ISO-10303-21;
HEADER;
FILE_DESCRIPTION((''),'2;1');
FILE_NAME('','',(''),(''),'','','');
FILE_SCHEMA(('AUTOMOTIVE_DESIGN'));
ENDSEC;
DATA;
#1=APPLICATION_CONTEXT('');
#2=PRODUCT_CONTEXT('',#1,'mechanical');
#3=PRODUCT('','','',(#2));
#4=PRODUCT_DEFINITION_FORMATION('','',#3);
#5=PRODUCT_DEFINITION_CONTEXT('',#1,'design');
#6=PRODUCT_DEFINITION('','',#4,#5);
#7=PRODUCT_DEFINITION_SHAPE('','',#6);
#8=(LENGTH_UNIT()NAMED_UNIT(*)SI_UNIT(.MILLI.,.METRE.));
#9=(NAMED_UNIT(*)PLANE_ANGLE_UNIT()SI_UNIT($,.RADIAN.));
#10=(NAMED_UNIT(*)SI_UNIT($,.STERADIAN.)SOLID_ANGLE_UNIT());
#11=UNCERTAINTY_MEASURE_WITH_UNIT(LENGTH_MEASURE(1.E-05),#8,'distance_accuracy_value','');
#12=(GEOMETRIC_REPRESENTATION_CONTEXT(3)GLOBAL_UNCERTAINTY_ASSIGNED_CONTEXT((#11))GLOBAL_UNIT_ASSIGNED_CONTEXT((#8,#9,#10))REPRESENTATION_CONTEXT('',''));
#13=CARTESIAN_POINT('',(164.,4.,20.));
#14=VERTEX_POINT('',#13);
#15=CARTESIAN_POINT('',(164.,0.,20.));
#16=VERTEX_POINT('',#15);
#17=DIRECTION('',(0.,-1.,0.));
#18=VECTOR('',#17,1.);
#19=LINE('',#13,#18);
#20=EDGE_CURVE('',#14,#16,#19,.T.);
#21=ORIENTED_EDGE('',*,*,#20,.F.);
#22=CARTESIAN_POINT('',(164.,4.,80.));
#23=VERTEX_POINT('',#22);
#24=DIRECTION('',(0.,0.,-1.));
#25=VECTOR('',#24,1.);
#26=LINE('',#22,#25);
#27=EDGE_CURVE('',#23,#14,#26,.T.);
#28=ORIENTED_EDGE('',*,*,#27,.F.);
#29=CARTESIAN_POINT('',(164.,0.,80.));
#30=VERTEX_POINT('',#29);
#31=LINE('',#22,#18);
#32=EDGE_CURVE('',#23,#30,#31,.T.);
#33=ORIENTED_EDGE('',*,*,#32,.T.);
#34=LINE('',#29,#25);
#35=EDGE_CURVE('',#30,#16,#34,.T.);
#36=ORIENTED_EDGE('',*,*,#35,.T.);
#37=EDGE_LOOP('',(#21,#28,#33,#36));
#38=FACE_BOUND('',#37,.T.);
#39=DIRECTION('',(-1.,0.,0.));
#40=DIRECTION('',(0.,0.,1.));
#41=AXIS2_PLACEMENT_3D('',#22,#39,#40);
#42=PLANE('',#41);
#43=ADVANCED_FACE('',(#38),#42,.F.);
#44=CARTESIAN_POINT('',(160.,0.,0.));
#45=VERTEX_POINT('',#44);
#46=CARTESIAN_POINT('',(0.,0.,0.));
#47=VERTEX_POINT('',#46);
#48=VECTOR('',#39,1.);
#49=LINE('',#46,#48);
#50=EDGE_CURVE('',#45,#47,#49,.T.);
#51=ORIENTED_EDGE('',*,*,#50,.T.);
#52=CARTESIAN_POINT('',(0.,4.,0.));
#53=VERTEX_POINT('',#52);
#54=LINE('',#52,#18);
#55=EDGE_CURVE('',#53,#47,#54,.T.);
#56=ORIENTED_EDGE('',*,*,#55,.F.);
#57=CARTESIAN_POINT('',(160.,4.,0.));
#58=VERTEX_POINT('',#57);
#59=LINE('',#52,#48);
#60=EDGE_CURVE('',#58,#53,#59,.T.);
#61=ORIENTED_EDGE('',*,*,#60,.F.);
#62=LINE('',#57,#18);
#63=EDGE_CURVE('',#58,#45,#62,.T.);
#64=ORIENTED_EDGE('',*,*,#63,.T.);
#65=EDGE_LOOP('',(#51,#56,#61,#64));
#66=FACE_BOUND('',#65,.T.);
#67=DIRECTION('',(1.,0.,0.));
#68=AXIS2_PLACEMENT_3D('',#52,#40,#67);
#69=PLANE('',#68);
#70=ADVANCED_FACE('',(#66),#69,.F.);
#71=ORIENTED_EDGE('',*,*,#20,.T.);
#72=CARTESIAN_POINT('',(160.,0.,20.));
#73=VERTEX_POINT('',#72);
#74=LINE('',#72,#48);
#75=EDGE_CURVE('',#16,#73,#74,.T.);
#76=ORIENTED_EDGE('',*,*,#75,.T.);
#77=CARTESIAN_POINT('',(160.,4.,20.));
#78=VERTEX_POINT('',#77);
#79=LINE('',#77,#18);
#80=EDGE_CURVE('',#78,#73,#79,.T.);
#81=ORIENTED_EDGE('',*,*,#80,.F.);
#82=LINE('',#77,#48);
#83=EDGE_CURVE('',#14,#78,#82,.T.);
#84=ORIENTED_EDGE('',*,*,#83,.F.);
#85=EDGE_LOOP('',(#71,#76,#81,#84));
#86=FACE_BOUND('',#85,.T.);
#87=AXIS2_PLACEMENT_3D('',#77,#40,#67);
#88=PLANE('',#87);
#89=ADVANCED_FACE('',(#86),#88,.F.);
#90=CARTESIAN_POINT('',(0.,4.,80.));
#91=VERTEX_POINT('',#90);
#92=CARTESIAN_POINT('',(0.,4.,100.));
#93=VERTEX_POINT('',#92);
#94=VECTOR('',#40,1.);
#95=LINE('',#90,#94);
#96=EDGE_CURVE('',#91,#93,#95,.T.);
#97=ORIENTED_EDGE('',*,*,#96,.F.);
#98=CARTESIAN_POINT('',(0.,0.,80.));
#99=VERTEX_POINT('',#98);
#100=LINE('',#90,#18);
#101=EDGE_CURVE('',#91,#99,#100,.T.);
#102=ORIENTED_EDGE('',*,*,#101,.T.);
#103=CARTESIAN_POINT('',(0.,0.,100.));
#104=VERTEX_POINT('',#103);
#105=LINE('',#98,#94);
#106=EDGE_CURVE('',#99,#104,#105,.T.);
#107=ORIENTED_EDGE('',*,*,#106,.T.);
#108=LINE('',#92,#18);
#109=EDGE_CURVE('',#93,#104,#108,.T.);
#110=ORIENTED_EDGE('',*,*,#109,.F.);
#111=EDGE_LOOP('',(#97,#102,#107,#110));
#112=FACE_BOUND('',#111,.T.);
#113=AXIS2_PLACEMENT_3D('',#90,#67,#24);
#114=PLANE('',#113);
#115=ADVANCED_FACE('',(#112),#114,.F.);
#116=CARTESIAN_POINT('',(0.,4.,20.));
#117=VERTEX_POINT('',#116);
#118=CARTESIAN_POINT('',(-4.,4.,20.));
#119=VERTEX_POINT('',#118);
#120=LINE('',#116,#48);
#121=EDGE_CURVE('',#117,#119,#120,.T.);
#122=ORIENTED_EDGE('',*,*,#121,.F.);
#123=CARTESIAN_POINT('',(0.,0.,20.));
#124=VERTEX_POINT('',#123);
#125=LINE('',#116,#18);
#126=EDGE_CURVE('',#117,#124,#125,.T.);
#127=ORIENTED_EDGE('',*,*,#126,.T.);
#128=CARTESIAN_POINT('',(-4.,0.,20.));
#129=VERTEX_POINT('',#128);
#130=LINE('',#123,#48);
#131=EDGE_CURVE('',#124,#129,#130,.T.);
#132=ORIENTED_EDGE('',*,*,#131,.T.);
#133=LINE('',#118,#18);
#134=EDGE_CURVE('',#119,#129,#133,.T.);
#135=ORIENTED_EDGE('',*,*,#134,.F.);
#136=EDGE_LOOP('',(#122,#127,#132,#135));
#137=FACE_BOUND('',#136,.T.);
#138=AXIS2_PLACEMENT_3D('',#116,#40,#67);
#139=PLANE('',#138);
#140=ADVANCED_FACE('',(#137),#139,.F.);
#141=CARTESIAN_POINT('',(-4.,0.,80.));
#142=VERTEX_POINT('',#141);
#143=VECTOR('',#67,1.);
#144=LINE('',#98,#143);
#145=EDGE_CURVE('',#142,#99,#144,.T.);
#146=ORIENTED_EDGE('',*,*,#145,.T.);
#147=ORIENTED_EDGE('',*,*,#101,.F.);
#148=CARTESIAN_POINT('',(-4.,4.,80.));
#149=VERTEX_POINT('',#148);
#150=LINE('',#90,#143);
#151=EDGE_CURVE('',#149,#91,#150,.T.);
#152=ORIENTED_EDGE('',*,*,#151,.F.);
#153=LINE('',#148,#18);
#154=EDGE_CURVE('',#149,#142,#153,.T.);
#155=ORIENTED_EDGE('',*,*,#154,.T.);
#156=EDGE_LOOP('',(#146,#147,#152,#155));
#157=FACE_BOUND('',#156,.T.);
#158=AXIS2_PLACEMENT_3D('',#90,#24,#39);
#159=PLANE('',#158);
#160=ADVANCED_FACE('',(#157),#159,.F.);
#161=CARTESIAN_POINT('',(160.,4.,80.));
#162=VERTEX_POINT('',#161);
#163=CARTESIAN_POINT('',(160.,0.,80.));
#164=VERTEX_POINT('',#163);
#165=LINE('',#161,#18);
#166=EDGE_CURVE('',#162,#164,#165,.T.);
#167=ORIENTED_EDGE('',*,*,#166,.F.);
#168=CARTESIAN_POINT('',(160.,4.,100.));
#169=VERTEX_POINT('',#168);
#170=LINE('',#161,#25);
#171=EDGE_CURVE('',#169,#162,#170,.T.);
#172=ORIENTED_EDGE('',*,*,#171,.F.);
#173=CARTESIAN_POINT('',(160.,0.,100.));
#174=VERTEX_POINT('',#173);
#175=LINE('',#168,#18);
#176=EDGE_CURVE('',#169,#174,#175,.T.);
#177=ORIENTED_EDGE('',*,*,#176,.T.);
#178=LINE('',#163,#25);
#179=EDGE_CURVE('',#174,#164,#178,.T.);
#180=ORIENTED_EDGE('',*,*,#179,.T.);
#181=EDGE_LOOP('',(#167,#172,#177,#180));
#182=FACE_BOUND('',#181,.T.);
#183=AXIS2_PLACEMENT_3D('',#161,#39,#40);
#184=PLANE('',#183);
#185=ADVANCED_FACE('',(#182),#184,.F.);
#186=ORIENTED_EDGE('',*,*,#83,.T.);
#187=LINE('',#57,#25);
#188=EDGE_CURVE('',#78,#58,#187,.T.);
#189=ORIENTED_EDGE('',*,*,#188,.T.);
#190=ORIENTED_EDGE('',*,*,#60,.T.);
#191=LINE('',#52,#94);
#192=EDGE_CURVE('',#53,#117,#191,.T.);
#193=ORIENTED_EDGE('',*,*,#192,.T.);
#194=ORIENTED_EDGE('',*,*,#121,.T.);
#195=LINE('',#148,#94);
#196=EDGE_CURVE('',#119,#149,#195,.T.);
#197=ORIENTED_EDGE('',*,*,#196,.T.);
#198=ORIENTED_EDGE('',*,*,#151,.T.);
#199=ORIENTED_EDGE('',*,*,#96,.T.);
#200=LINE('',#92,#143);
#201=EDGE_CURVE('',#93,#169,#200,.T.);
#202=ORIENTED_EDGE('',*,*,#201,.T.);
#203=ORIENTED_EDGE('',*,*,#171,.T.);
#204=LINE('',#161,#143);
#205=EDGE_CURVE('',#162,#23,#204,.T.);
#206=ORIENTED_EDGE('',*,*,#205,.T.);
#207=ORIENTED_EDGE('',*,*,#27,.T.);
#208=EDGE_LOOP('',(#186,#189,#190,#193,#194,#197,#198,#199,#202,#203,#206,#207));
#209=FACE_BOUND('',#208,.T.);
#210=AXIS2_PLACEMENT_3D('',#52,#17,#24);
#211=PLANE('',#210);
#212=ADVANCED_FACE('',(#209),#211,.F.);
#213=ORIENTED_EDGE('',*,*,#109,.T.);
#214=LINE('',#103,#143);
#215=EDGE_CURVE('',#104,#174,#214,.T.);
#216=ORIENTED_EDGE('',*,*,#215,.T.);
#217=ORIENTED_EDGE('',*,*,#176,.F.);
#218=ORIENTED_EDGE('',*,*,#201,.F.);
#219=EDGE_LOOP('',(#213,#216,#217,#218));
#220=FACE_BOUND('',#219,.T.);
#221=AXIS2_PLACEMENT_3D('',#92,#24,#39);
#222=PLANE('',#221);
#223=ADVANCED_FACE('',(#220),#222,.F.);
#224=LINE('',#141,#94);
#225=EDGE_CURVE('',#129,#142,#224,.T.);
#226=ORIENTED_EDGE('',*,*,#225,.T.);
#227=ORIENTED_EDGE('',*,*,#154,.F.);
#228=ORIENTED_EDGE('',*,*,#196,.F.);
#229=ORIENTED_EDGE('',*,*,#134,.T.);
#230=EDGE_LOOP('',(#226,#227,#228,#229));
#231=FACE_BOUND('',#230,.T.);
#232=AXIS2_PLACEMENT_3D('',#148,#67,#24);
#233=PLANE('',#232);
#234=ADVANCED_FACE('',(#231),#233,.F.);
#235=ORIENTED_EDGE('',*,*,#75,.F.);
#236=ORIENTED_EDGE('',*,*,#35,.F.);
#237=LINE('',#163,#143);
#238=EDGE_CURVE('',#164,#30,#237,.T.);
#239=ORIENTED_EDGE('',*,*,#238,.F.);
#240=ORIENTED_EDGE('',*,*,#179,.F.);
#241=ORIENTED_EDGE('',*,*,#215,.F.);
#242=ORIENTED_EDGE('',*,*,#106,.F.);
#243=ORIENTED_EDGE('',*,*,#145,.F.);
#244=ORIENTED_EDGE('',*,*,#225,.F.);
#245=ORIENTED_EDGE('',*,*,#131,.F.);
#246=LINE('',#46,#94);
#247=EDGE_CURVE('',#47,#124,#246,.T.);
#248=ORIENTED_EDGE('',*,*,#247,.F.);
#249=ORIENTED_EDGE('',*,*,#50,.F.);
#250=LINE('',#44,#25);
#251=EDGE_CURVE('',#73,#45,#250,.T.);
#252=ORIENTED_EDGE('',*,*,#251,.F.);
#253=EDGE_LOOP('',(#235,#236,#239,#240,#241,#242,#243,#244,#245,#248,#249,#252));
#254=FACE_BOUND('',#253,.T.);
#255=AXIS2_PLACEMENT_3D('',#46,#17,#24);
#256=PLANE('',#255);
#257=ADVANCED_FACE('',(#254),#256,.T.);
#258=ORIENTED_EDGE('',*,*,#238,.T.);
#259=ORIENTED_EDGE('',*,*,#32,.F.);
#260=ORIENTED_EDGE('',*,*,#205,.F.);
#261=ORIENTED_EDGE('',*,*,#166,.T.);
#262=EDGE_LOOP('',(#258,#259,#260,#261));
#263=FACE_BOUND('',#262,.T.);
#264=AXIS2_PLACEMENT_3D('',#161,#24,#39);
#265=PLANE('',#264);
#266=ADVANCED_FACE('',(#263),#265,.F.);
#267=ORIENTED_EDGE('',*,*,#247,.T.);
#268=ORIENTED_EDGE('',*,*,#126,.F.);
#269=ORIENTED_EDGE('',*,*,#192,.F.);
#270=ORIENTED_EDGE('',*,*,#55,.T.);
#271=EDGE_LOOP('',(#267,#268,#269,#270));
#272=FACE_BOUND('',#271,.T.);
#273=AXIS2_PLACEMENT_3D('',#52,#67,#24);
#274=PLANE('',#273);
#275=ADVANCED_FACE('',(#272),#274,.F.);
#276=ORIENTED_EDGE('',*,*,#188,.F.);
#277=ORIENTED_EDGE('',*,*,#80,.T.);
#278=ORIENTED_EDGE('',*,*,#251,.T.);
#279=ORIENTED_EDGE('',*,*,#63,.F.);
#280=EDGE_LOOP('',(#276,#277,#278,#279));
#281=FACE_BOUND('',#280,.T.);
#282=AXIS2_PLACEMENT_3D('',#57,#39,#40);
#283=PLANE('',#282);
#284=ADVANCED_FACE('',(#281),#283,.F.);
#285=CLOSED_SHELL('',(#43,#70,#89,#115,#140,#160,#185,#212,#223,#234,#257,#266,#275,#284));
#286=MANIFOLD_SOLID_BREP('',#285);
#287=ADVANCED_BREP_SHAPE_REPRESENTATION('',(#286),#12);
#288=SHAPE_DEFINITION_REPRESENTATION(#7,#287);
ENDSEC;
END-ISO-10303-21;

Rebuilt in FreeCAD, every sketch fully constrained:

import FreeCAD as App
import Part
import Sketcher
Q = App.Units.Quantity

doc = App.newDocument("Part")
params = doc.addObject("Spreadsheet::Sheet", "Params")
for row, (alias, value) in enumerate([
    ("sketch1_width", "160 mm"),
    ("sketch1_width2", "4 mm"),
    ("sketch1_height", "20 mm"),
    ("sketch1_height2", "60 mm"),
    ("pad1_length", "4 mm"),
], start=1):
    params.set(f"A{row}", alias)
    params.set(f"B{row}", "=" + value)
    params.setAlias(f"B{row}", alias)

body = doc.addObject("PartDesign::Body", "Body")

sketch1 = body.newObject("Sketcher::SketchObject", "Sketch")
sketch1.AttachmentSupport = (doc.getObject("XZ_Plane"), [""])
sketch1.MapMode = "FlatFace"
sketch1.addGeometry(Part.LineSegment(App.Vector(160, 0, 0), App.Vector(0, 0, 0)), False)
sketch1.addGeometry(Part.LineSegment(App.Vector(0, 0, 0), App.Vector(0, 20, 0)), False)
sketch1.addGeometry(Part.LineSegment(App.Vector(0, 20, 0), App.Vector(-4, 20, 0)), False)
sketch1.addGeometry(Part.LineSegment(App.Vector(-4, 20, 0), App.Vector(-4, 80, 0)), False)
sketch1.addGeometry(Part.LineSegment(App.Vector(-4, 80, 0), App.Vector(0, 80, 0)), False)
sketch1.addGeometry(Part.LineSegment(App.Vector(0, 80, 0), App.Vector(0, 100, 0)), False)
sketch1.addGeometry(Part.LineSegment(App.Vector(0, 100, 0), App.Vector(160, 100, 0)), False)
sketch1.addGeometry(Part.LineSegment(App.Vector(160, 100, 0), App.Vector(160, 80, 0)), False)
sketch1.addGeometry(Part.LineSegment(App.Vector(160, 80, 0), App.Vector(164, 80, 0)), False)
sketch1.addGeometry(Part.LineSegment(App.Vector(164, 80, 0), App.Vector(164, 20, 0)), False)
sketch1.addGeometry(Part.LineSegment(App.Vector(164, 20, 0), App.Vector(160, 20, 0)), False)
sketch1.addGeometry(Part.LineSegment(App.Vector(160, 20, 0), App.Vector(160, 0, 0)), False)
sketch1.addConstraint(Sketcher.Constraint("Coincident", 0, 2, 1, 1))
sketch1.addConstraint(Sketcher.Constraint("Coincident", 1, 2, 2, 1))
sketch1.addConstraint(Sketcher.Constraint("Coincident", 2, 2, 3, 1))
sketch1.addConstraint(Sketcher.Constraint("Coincident", 3, 2, 4, 1))
sketch1.addConstraint(Sketcher.Constraint("Coincident", 4, 2, 5, 1))
sketch1.addConstraint(Sketcher.Constraint("Coincident", 5, 2, 6, 1))
sketch1.addConstraint(Sketcher.Constraint("Coincident", 6, 2, 7, 1))
sketch1.addConstraint(Sketcher.Constraint("Coincident", 7, 2, 8, 1))
sketch1.addConstraint(Sketcher.Constraint("Coincident", 8, 2, 9, 1))
sketch1.addConstraint(Sketcher.Constraint("Coincident", 9, 2, 10, 1))
sketch1.addConstraint(Sketcher.Constraint("Coincident", 10, 2, 11, 1))
sketch1.addConstraint(Sketcher.Constraint("Coincident", 11, 2, 0, 1))
sketch1.addConstraint(Sketcher.Constraint("Horizontal", 0))
sketch1.addConstraint(Sketcher.Constraint("Vertical", 1))
sketch1.addConstraint(Sketcher.Constraint("Horizontal", 2))
sketch1.addConstraint(Sketcher.Constraint("Vertical", 3))
sketch1.addConstraint(Sketcher.Constraint("Horizontal", 4))
sketch1.addConstraint(Sketcher.Constraint("Vertical", 5))
sketch1.addConstraint(Sketcher.Constraint("Horizontal", 6))
sketch1.addConstraint(Sketcher.Constraint("Vertical", 7))
sketch1.addConstraint(Sketcher.Constraint("Horizontal", 8))
sketch1.addConstraint(Sketcher.Constraint("Vertical", 9))
sketch1.addConstraint(Sketcher.Constraint("Horizontal", 10))
sketch1.addConstraint(Sketcher.Constraint("Vertical", 11))
sketch1.addConstraint(Sketcher.Constraint("Coincident", 0, 2, -1, 1))
sketch1.addConstraint(Sketcher.Constraint("PointOnObject", 4, 2, -2))
sketch1.addConstraint(Sketcher.Constraint("Horizontal", 4, 2, 7, 2))
sketch1.addConstraint(Sketcher.Constraint("Horizontal", 2, 2, 9, 2))
sketch1.addConstraint(Sketcher.Constraint("Vertical", 7, 2, 10, 2))
sketch1.addConstraint(Sketcher.Constraint("Equal", 4, 8))
sketch1.addConstraint(Sketcher.Constraint("Equal", 1, 5))
sketch1.addConstraint(Sketcher.Constraint("DistanceX", 0, 2, 0, 1, Q("160 mm")))
sketch1.addConstraint(Sketcher.Constraint("DistanceX", 2, 2, 2, 1, Q("4 mm")))
sketch1.addConstraint(Sketcher.Constraint("DistanceY", 1, 1, 1, 2, Q("20 mm")))
sketch1.addConstraint(Sketcher.Constraint("DistanceY", 3, 1, 3, 2, Q("60 mm")))
sketch1.setExpression("Constraints[31]", "Params.sketch1_width")
sketch1.setExpression("Constraints[32]", "Params.sketch1_width2")
sketch1.setExpression("Constraints[33]", "Params.sketch1_height")
sketch1.setExpression("Constraints[34]", "Params.sketch1_height2")
pad1 = body.newObject("PartDesign::Pad", "Pad")
pad1.Profile = sketch1
pad1.setExpression("Length", "Params.pad1_length")
pad1.Reversed = True

doc.recompute()
